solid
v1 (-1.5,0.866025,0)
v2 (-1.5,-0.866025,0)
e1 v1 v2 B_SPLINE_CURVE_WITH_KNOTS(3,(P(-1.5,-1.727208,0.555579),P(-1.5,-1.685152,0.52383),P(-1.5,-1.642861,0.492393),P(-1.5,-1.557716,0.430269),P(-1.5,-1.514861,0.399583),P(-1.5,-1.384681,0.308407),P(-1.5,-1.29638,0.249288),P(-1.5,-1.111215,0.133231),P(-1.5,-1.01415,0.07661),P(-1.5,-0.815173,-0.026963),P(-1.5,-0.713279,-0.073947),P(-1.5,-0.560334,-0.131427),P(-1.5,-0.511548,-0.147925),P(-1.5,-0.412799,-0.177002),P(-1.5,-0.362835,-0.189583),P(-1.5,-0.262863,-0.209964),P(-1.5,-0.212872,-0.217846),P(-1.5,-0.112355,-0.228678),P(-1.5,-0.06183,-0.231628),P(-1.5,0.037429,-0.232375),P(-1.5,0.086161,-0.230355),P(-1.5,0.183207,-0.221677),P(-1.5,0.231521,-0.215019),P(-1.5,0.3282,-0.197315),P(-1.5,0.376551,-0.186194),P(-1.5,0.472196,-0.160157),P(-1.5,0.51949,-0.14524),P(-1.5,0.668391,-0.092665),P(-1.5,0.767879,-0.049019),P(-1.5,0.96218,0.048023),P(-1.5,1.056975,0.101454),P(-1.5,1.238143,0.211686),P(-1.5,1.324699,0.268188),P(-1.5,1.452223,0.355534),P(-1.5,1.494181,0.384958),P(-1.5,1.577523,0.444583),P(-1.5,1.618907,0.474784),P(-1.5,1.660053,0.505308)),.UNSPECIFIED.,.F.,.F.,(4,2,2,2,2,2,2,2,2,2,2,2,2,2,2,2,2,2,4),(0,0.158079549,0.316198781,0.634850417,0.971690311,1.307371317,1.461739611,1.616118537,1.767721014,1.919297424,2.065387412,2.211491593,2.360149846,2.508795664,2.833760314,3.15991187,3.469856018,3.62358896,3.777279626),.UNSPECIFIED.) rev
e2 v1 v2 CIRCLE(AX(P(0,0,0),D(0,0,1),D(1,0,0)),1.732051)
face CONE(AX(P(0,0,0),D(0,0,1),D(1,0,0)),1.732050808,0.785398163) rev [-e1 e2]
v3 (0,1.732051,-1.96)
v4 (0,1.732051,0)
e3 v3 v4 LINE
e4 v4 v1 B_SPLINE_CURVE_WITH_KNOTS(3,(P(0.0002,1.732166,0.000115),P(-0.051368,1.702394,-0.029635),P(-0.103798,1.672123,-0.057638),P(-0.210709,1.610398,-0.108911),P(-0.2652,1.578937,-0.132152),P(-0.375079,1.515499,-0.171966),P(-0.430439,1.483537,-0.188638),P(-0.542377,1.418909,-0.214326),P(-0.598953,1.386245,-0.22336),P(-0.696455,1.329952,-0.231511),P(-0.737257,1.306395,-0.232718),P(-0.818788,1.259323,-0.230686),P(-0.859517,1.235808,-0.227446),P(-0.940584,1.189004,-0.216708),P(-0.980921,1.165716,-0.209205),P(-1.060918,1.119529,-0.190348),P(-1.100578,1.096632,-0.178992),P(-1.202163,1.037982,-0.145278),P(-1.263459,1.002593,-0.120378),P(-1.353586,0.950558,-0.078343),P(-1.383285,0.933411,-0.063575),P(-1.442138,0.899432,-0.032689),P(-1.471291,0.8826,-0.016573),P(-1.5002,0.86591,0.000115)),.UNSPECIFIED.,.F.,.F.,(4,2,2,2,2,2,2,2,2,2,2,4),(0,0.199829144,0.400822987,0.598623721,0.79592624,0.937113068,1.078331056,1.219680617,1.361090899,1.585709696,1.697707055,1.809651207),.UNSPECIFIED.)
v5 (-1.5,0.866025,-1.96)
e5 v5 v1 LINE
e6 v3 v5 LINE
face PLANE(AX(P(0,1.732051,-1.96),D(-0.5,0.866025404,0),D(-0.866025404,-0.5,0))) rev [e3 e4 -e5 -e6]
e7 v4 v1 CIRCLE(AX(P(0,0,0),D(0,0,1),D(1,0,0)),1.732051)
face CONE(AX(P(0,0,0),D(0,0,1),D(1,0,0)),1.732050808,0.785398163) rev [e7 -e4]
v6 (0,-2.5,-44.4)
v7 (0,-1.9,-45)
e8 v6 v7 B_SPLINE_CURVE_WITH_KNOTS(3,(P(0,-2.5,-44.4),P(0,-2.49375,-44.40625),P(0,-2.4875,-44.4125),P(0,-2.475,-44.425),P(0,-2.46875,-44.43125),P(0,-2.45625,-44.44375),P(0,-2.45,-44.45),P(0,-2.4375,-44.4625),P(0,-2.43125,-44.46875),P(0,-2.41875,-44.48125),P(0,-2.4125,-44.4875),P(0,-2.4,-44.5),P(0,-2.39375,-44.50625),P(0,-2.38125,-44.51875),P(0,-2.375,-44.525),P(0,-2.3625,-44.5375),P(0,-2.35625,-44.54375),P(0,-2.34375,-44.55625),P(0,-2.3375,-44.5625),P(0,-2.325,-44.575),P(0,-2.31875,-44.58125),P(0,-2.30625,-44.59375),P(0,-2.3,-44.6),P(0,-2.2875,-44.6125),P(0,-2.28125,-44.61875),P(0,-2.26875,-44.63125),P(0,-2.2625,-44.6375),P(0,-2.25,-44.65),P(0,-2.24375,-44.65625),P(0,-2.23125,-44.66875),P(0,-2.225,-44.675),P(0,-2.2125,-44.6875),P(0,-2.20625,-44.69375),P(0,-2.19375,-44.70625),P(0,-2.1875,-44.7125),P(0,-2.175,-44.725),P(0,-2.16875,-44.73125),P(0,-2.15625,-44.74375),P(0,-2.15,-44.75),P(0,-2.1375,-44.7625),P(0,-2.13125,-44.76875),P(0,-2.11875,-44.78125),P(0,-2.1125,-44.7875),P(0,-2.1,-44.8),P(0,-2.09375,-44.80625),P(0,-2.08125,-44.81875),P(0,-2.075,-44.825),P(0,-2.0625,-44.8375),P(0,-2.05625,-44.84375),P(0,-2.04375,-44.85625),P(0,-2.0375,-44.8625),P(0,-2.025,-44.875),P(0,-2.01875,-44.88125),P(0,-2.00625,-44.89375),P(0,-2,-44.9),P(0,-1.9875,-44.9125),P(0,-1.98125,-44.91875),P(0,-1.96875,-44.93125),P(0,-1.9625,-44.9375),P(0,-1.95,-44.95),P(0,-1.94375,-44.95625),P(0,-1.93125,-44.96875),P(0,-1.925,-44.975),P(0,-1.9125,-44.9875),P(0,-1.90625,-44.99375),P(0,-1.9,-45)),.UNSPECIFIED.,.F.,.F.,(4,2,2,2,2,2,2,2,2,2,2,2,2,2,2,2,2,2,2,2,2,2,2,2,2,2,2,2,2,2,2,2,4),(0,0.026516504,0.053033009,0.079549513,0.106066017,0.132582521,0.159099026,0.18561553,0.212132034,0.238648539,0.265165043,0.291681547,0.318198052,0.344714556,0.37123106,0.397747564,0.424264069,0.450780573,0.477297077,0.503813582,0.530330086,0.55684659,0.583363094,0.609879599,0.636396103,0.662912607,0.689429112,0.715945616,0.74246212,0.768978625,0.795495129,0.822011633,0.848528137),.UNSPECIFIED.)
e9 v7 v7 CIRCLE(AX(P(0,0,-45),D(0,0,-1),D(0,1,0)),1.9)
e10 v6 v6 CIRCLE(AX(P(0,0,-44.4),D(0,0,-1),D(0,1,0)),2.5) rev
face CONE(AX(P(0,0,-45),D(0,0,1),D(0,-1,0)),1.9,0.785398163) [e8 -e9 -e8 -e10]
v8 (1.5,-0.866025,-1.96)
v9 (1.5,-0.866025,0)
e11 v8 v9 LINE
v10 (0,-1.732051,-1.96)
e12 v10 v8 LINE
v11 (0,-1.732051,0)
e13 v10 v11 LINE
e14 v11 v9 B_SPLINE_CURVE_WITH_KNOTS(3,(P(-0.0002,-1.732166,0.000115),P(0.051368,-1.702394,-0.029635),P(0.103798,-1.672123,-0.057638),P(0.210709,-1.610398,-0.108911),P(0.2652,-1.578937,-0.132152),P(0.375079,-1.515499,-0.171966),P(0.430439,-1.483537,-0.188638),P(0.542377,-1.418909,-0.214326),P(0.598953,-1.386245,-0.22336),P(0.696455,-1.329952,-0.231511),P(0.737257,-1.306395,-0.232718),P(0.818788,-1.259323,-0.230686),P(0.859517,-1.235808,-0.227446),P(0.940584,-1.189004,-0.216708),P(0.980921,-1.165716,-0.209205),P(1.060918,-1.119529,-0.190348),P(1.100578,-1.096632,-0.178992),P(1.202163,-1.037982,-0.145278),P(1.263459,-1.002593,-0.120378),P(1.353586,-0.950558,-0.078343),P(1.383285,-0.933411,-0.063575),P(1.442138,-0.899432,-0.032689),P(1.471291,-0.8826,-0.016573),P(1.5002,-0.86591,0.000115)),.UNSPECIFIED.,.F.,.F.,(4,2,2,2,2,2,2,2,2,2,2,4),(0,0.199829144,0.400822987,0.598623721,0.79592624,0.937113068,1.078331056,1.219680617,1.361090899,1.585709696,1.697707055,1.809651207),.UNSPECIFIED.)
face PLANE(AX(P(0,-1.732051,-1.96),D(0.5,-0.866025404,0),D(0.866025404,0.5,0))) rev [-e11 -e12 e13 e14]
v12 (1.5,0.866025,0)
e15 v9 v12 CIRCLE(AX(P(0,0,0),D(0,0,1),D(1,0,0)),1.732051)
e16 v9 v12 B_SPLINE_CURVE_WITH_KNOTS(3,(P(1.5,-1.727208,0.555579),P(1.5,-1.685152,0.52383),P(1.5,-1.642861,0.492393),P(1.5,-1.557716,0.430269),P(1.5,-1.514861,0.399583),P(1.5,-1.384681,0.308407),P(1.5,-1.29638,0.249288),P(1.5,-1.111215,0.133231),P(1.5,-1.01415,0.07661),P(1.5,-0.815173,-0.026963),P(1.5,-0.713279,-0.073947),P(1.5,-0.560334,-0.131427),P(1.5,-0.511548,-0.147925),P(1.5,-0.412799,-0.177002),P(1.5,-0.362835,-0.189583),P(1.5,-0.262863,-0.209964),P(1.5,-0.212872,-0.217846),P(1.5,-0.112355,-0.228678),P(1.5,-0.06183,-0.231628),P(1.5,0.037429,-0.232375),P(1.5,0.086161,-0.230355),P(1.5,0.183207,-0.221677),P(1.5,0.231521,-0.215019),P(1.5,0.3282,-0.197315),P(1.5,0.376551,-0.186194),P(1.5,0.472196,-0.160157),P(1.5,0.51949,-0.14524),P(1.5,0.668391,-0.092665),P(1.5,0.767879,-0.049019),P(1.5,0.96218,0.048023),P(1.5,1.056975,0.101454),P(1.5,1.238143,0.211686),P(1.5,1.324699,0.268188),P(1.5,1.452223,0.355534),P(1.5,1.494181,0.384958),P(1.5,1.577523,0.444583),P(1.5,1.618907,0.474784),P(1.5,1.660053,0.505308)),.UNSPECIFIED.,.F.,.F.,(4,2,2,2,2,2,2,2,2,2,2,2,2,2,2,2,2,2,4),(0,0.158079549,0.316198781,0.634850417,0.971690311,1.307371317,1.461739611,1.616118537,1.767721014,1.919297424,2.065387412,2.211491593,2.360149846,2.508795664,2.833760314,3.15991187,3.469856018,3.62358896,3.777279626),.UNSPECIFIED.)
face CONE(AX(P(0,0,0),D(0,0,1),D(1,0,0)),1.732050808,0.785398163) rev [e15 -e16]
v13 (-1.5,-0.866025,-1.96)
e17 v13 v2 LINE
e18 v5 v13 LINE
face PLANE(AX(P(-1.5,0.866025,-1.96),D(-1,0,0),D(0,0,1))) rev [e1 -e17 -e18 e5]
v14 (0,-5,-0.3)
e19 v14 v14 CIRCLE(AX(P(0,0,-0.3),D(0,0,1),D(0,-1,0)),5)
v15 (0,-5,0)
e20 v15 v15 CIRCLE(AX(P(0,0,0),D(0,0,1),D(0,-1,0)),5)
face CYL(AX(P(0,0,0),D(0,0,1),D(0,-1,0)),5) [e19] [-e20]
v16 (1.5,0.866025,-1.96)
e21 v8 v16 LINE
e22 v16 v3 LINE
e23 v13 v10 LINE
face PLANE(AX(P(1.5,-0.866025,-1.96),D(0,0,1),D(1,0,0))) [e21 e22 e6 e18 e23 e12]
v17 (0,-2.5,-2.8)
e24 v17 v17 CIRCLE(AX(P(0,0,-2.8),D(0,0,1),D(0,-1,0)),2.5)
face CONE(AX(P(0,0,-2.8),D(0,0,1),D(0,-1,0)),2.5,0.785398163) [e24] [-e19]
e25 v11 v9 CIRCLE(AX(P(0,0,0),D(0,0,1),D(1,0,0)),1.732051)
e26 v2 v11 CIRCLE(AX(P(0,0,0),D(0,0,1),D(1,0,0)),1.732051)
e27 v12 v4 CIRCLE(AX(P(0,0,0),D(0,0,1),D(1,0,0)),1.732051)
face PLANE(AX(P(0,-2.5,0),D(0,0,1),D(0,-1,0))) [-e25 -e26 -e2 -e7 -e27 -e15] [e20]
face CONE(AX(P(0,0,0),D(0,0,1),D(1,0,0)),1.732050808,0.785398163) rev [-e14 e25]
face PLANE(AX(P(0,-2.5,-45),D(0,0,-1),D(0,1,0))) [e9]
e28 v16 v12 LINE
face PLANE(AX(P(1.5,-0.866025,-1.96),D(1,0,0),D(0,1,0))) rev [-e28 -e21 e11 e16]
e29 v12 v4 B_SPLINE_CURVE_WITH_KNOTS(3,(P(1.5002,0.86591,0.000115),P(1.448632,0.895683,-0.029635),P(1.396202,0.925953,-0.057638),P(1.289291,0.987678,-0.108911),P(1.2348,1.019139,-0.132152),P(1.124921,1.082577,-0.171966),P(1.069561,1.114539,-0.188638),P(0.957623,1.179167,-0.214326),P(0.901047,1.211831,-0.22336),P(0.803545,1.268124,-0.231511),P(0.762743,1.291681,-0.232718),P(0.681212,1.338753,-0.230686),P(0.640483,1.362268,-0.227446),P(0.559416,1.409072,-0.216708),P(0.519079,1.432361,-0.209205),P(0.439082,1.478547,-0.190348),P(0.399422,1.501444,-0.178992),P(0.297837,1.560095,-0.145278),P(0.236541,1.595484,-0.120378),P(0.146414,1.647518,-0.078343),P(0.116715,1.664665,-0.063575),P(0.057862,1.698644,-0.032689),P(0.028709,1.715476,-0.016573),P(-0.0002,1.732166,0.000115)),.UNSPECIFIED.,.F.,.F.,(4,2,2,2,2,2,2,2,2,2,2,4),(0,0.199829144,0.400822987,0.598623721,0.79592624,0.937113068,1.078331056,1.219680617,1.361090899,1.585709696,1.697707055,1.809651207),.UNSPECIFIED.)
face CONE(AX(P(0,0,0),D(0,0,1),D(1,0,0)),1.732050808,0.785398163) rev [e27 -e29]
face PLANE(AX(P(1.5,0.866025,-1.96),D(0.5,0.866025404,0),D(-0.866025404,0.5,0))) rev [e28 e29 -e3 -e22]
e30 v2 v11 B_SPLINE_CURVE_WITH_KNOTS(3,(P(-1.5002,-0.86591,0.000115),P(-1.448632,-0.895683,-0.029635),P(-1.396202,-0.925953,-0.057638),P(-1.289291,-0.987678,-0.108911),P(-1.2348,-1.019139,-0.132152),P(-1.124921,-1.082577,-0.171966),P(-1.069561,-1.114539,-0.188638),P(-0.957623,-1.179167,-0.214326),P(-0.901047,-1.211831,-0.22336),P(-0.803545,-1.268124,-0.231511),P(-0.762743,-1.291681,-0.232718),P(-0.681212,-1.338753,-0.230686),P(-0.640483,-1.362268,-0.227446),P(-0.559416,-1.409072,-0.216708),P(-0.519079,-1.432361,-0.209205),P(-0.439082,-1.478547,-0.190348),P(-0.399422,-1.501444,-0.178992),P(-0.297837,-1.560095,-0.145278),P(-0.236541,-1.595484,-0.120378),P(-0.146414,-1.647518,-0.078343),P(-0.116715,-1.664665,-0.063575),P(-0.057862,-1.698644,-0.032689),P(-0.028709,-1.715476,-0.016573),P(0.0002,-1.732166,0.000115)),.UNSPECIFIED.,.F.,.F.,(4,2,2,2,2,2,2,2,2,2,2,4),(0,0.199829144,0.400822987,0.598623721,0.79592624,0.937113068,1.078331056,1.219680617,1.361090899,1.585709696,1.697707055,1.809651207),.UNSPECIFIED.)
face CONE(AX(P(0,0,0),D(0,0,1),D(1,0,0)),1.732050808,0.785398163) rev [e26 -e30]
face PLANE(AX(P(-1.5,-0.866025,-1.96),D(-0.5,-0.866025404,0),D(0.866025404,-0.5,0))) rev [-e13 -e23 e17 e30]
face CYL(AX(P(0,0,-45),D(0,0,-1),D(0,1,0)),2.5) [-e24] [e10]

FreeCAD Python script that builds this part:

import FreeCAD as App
import Part
import Sketcher

V = App.Vector
Q = App.Units.Quantity


def edges_at(feature, points):
    """Names of the edges that pass closest to the given points."""
    edges = feature.Shape.Edges
    near = lambda p: min(range(len(edges)), key=lambda i: edges[i].distToShape(Part.Vertex(*p))[0])
    return sorted({f"Edge{near(p) + 1}" for p in points})

doc = App.newDocument("Part")
body = doc.addObject("PartDesign::Body", "Body")

sketch1 = doc.addObject("Sketcher::SketchObject", "Sketch")
body.addObject(sketch1)
sketch1.AttachmentSupport = (doc.YZ_Plane, [""])
sketch1.MapMode = "FlatFace"
sketch1.addGeometry(Part.LineSegment(V(2.5, 0, 0), V(0, 0, 0)), False)
sketch1.addGeometry(Part.LineSegment(V(0, 0, 0), V(0, -45, 0)), False)
sketch1.addGeometry(Part.LineSegment(V(0, -45, 0), V(2.5, -45, 0)), False)
sketch1.addGeometry(Part.LineSegment(V(2.5, -45, 0), V(2.5, 0, 0)), False)
sketch1.addConstraint(Sketcher.Constraint("Coincident", 0, 2, 1, 1))
sketch1.addConstraint(Sketcher.Constraint("Coincident", 1, 2, 2, 1))
sketch1.addConstraint(Sketcher.Constraint("Coincident", 2, 2, 3, 1))
sketch1.addConstraint(Sketcher.Constraint("Coincident", 3, 2, 0, 1))
sketch1.addConstraint(Sketcher.Constraint("Horizontal", 0))
sketch1.addConstraint(Sketcher.Constraint("Vertical", 1))
sketch1.addConstraint(Sketcher.Constraint("Horizontal", 2))
sketch1.addConstraint(Sketcher.Constraint("Vertical", 3))
sketch1.addConstraint(Sketcher.Constraint("Coincident", 0, 2, -1, 1))
sketch1.addConstraint(Sketcher.Constraint("DistanceY", 1, 2, 1, 1, 45.0))
sketch1.addConstraint(Sketcher.Constraint("DistanceX", 0, 2, 0, 1, 2.5))
revolution = doc.addObject("PartDesign::Revolution", "Revolution")
body.addObject(revolution)
revolution.Profile = sketch1
revolution.ReferenceAxis = (sketch1, ["V_Axis"])
revolution.Angle = 360
doc.recompute()

chamfer = doc.addObject("PartDesign::Chamfer", "Chamfer")
body.addObject(chamfer)
chamfer.Base = (revolution, edges_at(revolution, [(0, -2.5, -45)]))
chamfer.Size = 0.6

sketch2 = doc.addObject("Sketcher::SketchObject", "Sketch001")
body.addObject(sketch2)
sketch2.AttachmentSupport = (doc.YZ_Plane, [""])
sketch2.MapMode = "FlatFace"
sketch2.addGeometry(Part.LineSegment(V(5, -0.3, 0), V(5, 0, 0)), False)
sketch2.addGeometry(Part.LineSegment(V(5, 0, 0), V(0, 0, 0)), False)
sketch2.addGeometry(Part.LineSegment(V(0, 0, 0), V(0, -2.8, 0)), False)
sketch2.addGeometry(Part.LineSegment(V(0, -2.8, 0), V(2.5, -2.8, 0)), False)
sketch2.addGeometry(Part.LineSegment(V(2.5, -2.8, 0), V(5, -0.3, 0)), False)
sketch2.addConstraint(Sketcher.Constraint("Coincident", 0, 2, 1, 1))
sketch2.addConstraint(Sketcher.Constraint("Coincident", 1, 2, 2, 1))
sketch2.addConstraint(Sketcher.Constraint("Coincident", 2, 2, 3, 1))
sketch2.addConstraint(Sketcher.Constraint("Coincident", 3, 2, 4, 1))
sketch2.addConstraint(Sketcher.Constraint("Coincident", 4, 2, 0, 1))
sketch2.addConstraint(Sketcher.Constraint("Vertical", 0))
sketch2.addConstraint(Sketcher.Constraint("Horizontal", 1))
sketch2.addConstraint(Sketcher.Constraint("Vertical", 2))
sketch2.addConstraint(Sketcher.Constraint("Horizontal", 3))
sketch2.addConstraint(Sketcher.Constraint("Coincident", 1, 2, -1, 1))
sketch2.addConstraint(Sketcher.Constraint("DistanceX", 1, 2, 1, 1, 5.0))
sketch2.addConstraint(Sketcher.Constraint("Angle", 4, Q("45 deg")))
sketch2.addConstraint(Sketcher.Constraint("DistanceX", 3, 1, 3, 2, 2.5))
sketch2.addConstraint(Sketcher.Constraint("DistanceY", 0, 1, 0, 2, 0.3))
revolution2 = doc.addObject("PartDesign::Revolution", "Revolution001")
body.addObject(revolution2)
revolution2.Profile = sketch2
revolution2.ReferenceAxis = (sketch2, ["V_Axis"])
revolution2.Angle = 360

sketch3 = doc.addObject("Sketcher::SketchObject", "Sketch002")
body.addObject(sketch3)
sketch3.AttachmentSupport = (doc.YZ_Plane, [""])
sketch3.MapMode = "FlatFace"
sketch3.addGeometry(Part.LineSegment(V(0, -2.8, 0), V(-2.5, -2.8, 0)), False)
sketch3.addGeometry(Part.LineSegment(V(-2.5, -2.8, 0), V(0, -5.3, 0)), False)
sketch3.addGeometry(Part.LineSegment(V(0, -5.3, 0), V(0, -2.8, 0)), False)
sketch3.addConstraint(Sketcher.Constraint("Coincident", 0, 2, 1, 1))
sketch3.addConstraint(Sketcher.Constraint("Coincident", 1, 2, 2, 1))
sketch3.addConstraint(Sketcher.Constraint("Coincident", 2, 2, 0, 1))
sketch3.addConstraint(Sketcher.Constraint("Horizontal", 0))
sketch3.addConstraint(Sketcher.Constraint("Vertical", 2))
sketch3.addConstraint(Sketcher.Constraint("PointOnObject", 1, 2, -2))
sketch3.addConstraint(Sketcher.Constraint("Equal", 0, 2))
sketch3.addConstraint(Sketcher.Constraint("DistanceX", 0, 2, 0, 1, 2.5))
sketch3.addConstraint(Sketcher.Constraint("DistanceY", 0, 2, -1, 1, 2.8))
revolution3 = doc.addObject("PartDesign::Revolution", "Revolution002")
body.addObject(revolution3)
revolution3.Profile = sketch3
revolution3.ReferenceAxis = (sketch3, ["V_Axis"])
revolution3.Angle = 360

sketch4 = doc.addObject("Sketcher::SketchObject", "Sketch003")
body.addObject(sketch4)
sketch4.AttachmentSupport = (doc.XY_Plane, [""])
sketch4.MapMode = "FlatFace"
sketch4.addGeometry(Part.LineSegment(V(1.5, -0.9, 0), V(1.5, 0.9, 0)), False)
sketch4.addGeometry(Part.LineSegment(V(1.5, 0.9, 0), V(0, 1.7, 0)), False)
sketch4.addGeometry(Part.LineSegment(V(0, 1.7, 0), V(-1.5, 0.9, 0)), False)
sketch4.addGeometry(Part.LineSegment(V(-1.5, 0.9, 0), V(-1.5, -0.9, 0)), False)
sketch4.addGeometry(Part.LineSegment(V(-1.5, -0.9, 0), V(0, -1.7, 0)), False)
sketch4.addGeometry(Part.LineSegment(V(0, -1.7, 0), V(1.5, -0.9, 0)), False)
sketch4.addConstraint(Sketcher.Constraint("Coincident", 0, 2, 1, 1))
sketch4.addConstraint(Sketcher.Constraint("Coincident", 1, 2, 2, 1))
sketch4.addConstraint(Sketcher.Constraint("Coincident", 2, 2, 3, 1))
sketch4.addConstraint(Sketcher.Constraint("Coincident", 3, 2, 4, 1))
sketch4.addConstraint(Sketcher.Constraint("Coincident", 4, 2, 5, 1))
sketch4.addConstraint(Sketcher.Constraint("Coincident", 5, 2, 0, 1))
sketch4.addConstraint(Sketcher.Constraint("Vertical", 0))
sketch4.addConstraint(Sketcher.Constraint("Vertical", 3))
sketch4.addConstraint(Sketcher.Constraint("Symmetric", 0, 2, 3, 2, -1, 1))
sketch4.addConstraint(Sketcher.Constraint("Symmetric", 1, 2, 4, 2, -1, 1))
sketch4.addConstraint(Sketcher.Constraint("PointOnObject", 1, 2, -2))
sketch4.addConstraint(Sketcher.Constraint("Parallel", 2, 5))
sketch4.addConstraint(Sketcher.Constraint("Horizontal", 0, 2, 2, 2))
sketch4.addConstraint(Sketcher.Constraint("Angle", 1, Q("150 deg")))
sketch4.addConstraint(Sketcher.Constraint("DistanceX", 2, 2, 0, 2, 3.0))
sketch4.addConstraint(Sketcher.Constraint("DistanceY", 0, 1, 0, 2, 1.732051))
pocket1 = doc.addObject("PartDesign::Pocket", "Pocket")
body.addObject(pocket1)
pocket1.Profile = sketch4
pocket1.Length = 1.96

sketch5 = doc.addObject("Sketcher::SketchObject", "Sketch004")
body.addObject(sketch5)
sketch5.AttachmentSupport = (doc.YZ_Plane, [""])
sketch5.MapMode = "FlatFace"
sketch5.addGeometry(Part.LineSegment(V(0, 0, 0), V(-1.7, 0, 0)), False)
sketch5.addGeometry(Part.LineSegment(V(-1.7, 0, 0), V(0, -1.7, 0)), False)
sketch5.addGeometry(Part.LineSegment(V(0, -1.7, 0), V(0, 0, 0)), False)
sketch5.addConstraint(Sketcher.Constraint("Coincident", 0, 2, 1, 1))
sketch5.addConstraint(Sketcher.Constraint("Coincident", 1, 2, 2, 1))
sketch5.addConstraint(Sketcher.Constraint("Coincident", 2, 2, 0, 1))
sketch5.addConstraint(Sketcher.Constraint("Horizontal", 0))
sketch5.addConstraint(Sketcher.Constraint("Vertical", 2))
sketch5.addConstraint(Sketcher.Constraint("Coincident", 2, 2, -1, 1))
sketch5.addConstraint(Sketcher.Constraint("Equal", 0, 2))
sketch5.addConstraint(Sketcher.Constraint("DistanceX", 0, 2, 0, 1, 1.732051))
groove = doc.addObject("PartDesign::Groove", "Groove")
body.addObject(groove)
groove.Profile = sketch5
groove.ReferenceAxis = (sketch5, ["V_Axis"])
groove.Angle = 360

doc.recompute()
